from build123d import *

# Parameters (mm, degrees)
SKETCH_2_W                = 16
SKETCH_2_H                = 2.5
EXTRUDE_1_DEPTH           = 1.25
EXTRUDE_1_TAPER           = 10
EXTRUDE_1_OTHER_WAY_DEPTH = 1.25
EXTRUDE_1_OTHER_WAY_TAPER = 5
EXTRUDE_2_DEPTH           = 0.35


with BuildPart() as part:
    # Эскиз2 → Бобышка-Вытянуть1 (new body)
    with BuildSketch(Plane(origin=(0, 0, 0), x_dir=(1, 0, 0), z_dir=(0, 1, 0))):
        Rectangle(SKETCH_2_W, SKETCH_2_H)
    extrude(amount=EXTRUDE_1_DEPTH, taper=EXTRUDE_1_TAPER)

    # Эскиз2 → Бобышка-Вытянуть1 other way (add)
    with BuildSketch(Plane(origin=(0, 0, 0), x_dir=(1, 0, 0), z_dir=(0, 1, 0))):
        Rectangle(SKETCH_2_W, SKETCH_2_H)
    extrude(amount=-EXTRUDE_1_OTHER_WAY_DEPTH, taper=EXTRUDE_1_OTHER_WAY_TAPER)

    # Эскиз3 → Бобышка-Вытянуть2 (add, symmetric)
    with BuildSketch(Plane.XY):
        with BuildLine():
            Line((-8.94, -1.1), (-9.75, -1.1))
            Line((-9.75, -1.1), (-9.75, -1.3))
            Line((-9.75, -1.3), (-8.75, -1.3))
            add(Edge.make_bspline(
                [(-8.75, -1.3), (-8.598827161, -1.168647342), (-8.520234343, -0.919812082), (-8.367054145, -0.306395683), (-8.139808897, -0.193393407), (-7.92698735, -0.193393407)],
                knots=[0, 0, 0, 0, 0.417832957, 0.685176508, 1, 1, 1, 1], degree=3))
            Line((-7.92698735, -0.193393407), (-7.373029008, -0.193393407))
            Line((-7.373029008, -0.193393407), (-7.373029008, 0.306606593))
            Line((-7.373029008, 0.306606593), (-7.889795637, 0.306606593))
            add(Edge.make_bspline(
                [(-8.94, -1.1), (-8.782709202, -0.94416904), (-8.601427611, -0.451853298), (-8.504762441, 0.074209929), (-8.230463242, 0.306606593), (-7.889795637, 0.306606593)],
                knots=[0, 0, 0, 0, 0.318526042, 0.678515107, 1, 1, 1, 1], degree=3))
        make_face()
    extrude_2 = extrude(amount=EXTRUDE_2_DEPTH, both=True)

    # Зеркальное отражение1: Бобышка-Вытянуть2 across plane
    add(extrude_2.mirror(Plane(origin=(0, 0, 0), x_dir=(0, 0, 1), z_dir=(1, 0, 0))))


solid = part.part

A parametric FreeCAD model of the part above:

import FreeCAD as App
import Part
import Sketcher

doc = App.newDocument("Part")
body = doc.addObject("PartDesign::Body", "Body")

sketch1 = doc.addObject("Sketcher::SketchObject", "Sketch")
body.addObject(sketch1)
sketch1.AttachmentSupport = (doc.XZ_Plane, [""])
sketch1.MapMode = "FlatFace"
sketch1.addGeometry([
    Part.LineSegment(App.Vector(-8, -1.2, 0), App.Vector(-8, 1.2, 0)),
    Part.LineSegment(App.Vector(-8, 1.2, 0), App.Vector(8, 1.2, 0)),
    Part.LineSegment(App.Vector(8, 1.2, 0), App.Vector(8, -1.2, 0)),
    Part.LineSegment(App.Vector(8, -1.2, 0), App.Vector(-8, -1.2, 0)),
], False)
sketch1.addConstraint([
    Sketcher.Constraint("Coincident", 0, 2, 1, 1),
    Sketcher.Constraint("Coincident", 1, 2, 2, 1),
    Sketcher.Constraint("Coincident", 2, 2, 3, 1),
    Sketcher.Constraint("Coincident", 3, 2, 0, 1),
    Sketcher.Constraint("Vertical", 0),
    Sketcher.Constraint("Horizontal", 1),
    Sketcher.Constraint("Vertical", 2),
    Sketcher.Constraint("Horizontal", 3),
    Sketcher.Constraint("Symmetric", 0, 2, 2, 2, -1, 1),
    Sketcher.Constraint("DistanceX", 1, 1, 1, 2, 16.0),
    Sketcher.Constraint("DistanceY", 0, 1, 0, 2, 2.5),
])
pad1 = doc.addObject("PartDesign::Pad", "Pad")
body.addObject(pad1)
pad1.Profile = sketch1
pad1.Length = 1.25
pad1.Reversed = True
pad1.TaperAngle = -10

sketch2 = doc.addObject("Sketcher::SketchObject", "Sketch001")
body.addObject(sketch2)
sketch2.AttachmentSupport = (doc.XZ_Plane, [""])
sketch2.MapMode = "FlatFace"
sketch2.addGeometry([
    Part.LineSegment(App.Vector(-8, -1.2, 0), App.Vector(-8, 1.2, 0)),
    Part.LineSegment(App.Vector(-8, 1.2, 0), App.Vector(8, 1.2, 0)),
    Part.LineSegment(App.Vector(8, 1.2, 0), App.Vector(8, -1.2, 0)),
    Part.LineSegment(App.Vector(8, -1.2, 0), App.Vector(-8, -1.2, 0)),
], False)
sketch2.addConstraint([
    Sketcher.Constraint("Coincident", 0, 2, 1, 1),
    Sketcher.Constraint("Coincident", 1, 2, 2, 1),
    Sketcher.Constraint("Coincident", 2, 2, 3, 1),
    Sketcher.Constraint("Coincident", 3, 2, 0, 1),
    Sketcher.Constraint("Vertical", 0),
    Sketcher.Constraint("Horizontal", 1),
    Sketcher.Constraint("Vertical", 2),
    Sketcher.Constraint("Horizontal", 3),
    Sketcher.Constraint("Symmetric", 0, 2, 2, 2, -1, 1),
    Sketcher.Constraint("DistanceX", 1, 1, 1, 2, 16.0),
    Sketcher.Constraint("DistanceY", 0, 1, 0, 2, 2.5),
])
pad2 = doc.addObject("PartDesign::Pad", "Pad001")
body.addObject(pad2)
pad2.Profile = sketch2
pad2.Length = 1.25
pad2.TaperAngle = -5

sketch3 = doc.addObject("Sketcher::SketchObject", "Sketch002")
body.addObject(sketch3)
sketch3.AttachmentSupport = (doc.XY_Plane, [""])
sketch3.MapMode = "FlatFace"
sketch3.addGeometry([
    Part.LineSegment(App.Vector(-8.94, -1.1, 0), App.Vector(-9.75, -1.1, 0)),
    Part.LineSegment(App.Vector(-9.75, -1.1, 0), App.Vector(-9.75, -1.3, 0)),
    Part.LineSegment(App.Vector(-9.75, -1.3, 0), App.Vector(-8.75, -1.3, 0)),
    Part.BSplineCurve([App.Vector(-8.75, -1.3, 0), App.Vector(-8.598827, -1.168647, 0), App.Vector(-8.520234, -0.919812, 0), App.Vector(-8.367054, -0.306396, 0), App.Vector(-8.139809, -0.193393, 0), App.Vector(-7.926987, -0.193393, 0)], [4, 1, 1, 4], [0, 0.417832957, 0.685176508, 1], False, 3, [1, 1, 1, 1, 1, 1], False),
    Part.LineSegment(App.Vector(-7.926987, -0.193393, 0), App.Vector(-7.373029, -0.193393, 0)),
    Part.LineSegment(App.Vector(-7.373029, -0.193393, 0), App.Vector(-7.373029, 0.306607, 0)),
    Part.LineSegment(App.Vector(-7.373029, 0.306607, 0), App.Vector(-7.889796, 0.306607, 0)),
    Part.BSplineCurve([App.Vector(-8.94, -1.1, 0), App.Vector(-8.782709, -0.944169, 0), App.Vector(-8.601428, -0.451853, 0), App.Vector(-8.504762, 0.07421, 0), App.Vector(-8.230463, 0.306607, 0), App.Vector(-7.889796, 0.306607, 0)], [4, 1, 1, 4], [0, 0.318526042, 0.678515107, 1], False, 3, [1, 1, 1, 1, 1, 1], False),
], False)
sketch3.addConstraint([
    Sketcher.Constraint("Block", 3),
    Sketcher.Constraint("Block", 7),
    Sketcher.Constraint("Coincident", 0, 2, 1, 1),
    Sketcher.Constraint("Coincident", 1, 2, 2, 1),
    Sketcher.Constraint("Coincident", 2, 2, 3, 1),
    Sketcher.Constraint("Coincident", 3, 2, 4, 1),
    Sketcher.Constraint("Coincident", 4, 2, 5, 1),
    Sketcher.Constraint("Coincident", 5, 2, 6, 1),
    Sketcher.Constraint("Coincident", 6, 2, 7, 2),
    Sketcher.Constraint("Coincident", 7, 1, 0, 1),
    Sketcher.Constraint("Horizontal", 0),
    Sketcher.Constraint("Vertical", 1),
    Sketcher.Constraint("Horizontal", 2),
    Sketcher.Constraint("Horizontal", 4),
    Sketcher.Constraint("Vertical", 5),
    Sketcher.Constraint("Horizontal", 6),
    Sketcher.Constraint("DistanceX", 2, 1, 2, 2, 1.0),
    Sketcher.Constraint("DistanceX", 4, 1, 4, 2, 0.553958),
])
pad3 = doc.addObject("PartDesign::Pad", "Pad002")
body.addObject(pad3)
pad3.Profile = sketch3
pad3.Length = 0.7
pad3.Midplane = True
doc.recompute()

mirrored = doc.addObject("PartDesign::Mirrored", "Mirrored")
body.addObject(mirrored)
mirrored.Originals = [pad3]
mirrored.MirrorPlane = (doc.YZ_Plane, [""])
body.Tip = mirrored

doc.recompute()
